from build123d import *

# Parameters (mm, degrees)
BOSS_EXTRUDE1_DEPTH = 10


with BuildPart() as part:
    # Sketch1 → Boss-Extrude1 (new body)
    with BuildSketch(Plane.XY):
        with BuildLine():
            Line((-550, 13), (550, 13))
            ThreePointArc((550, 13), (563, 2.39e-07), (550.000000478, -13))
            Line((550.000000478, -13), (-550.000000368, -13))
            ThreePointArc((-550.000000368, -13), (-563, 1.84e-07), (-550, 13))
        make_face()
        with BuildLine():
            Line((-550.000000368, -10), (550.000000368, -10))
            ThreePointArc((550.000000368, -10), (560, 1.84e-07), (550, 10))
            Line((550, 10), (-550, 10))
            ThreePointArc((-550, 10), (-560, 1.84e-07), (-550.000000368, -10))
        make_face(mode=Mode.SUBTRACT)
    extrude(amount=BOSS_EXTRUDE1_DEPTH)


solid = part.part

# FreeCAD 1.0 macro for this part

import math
import FreeCAD as App
import Part
import Sketcher

V = App.Vector
Q = App.Units.Quantity

doc = App.newDocument("Part")
body = doc.addObject("PartDesign::Body", "Body")

# Sketch on XY plane
sketch1 = body.newObject("Sketcher::SketchObject", "Sketch")
sketch1.AttachmentSupport = (doc.getObject("XY_Plane"), [""])
sketch1.MapMode = "FlatFace"
sketch1.addGeometry([
    Part.LineSegment(V(550, 13, 0), V(-550, 13, 0)),  # 0
    Part.ArcOfCircle(Part.Circle(V(-550, 0, 0), V(0, 0, 1), 13), math.radians(90), math.radians(269.999998)),  # 1
    Part.LineSegment(V(-550, -13, 0), V(550, -13, 0)),  # 2
    Part.ArcOfCircle(Part.Circle(V(550, 0, 0), V(0, 0, 1), 13), math.radians(-89.999998), math.radians(90)),  # 3
    Part.ArcOfCircle(Part.Circle(V(-550, 0, 0), V(0, 0, 1), 10), math.radians(90), math.radians(269.999998)),  # 4
    Part.LineSegment(V(-550, 10, 0), V(550, 10, 0)),  # 5
    Part.ArcOfCircle(Part.Circle(V(550, 0, 0), V(0, 0, 1), 10), math.radians(-89.999998), math.radians(90)),  # 6
    Part.LineSegment(V(550, -10, 0), V(-550, -10, 0)),  # 7
], False)
sketch1.addConstraint([
    Sketcher.Constraint("Tangent", 0, 2, 1, 1),
    Sketcher.Constraint("Tangent", 1, 2, 2, 1),
    Sketcher.Constraint("Tangent", 2, 2, 3, 1),
    Sketcher.Constraint("Tangent", 3, 2, 0, 1),
    Sketcher.Constraint("Tangent", 4, 1, 5, 1),
    Sketcher.Constraint("Tangent", 5, 2, 6, 2),
    Sketcher.Constraint("Tangent", 6, 1, 7, 1),
    Sketcher.Constraint("Tangent", 7, 2, 4, 2),
    Sketcher.Constraint("Horizontal", 0),
    Sketcher.Constraint("Horizontal", 2),
    Sketcher.Constraint("Horizontal", 5),
    Sketcher.Constraint("Horizontal", 7),
    Sketcher.Constraint("Coincident", 4, 3, 1, 3),
    Sketcher.Constraint("Symmetric", 1, 3, 3, 3, -1, 1),
    Sketcher.Constraint("Vertical", 6, 3, 2, 2),
    Sketcher.Constraint("Radius", 1, Q("13 mm")),
    Sketcher.Constraint("Radius", 4, Q("10 mm")),
    Sketcher.Constraint("DistanceX", 0, 2, 0, 1, Q("1100 mm")),
])
pad1 = body.newObject("PartDesign::Pad", "Pad")
pad1.Profile = sketch1
pad1.Length = 10

doc.recompute()
